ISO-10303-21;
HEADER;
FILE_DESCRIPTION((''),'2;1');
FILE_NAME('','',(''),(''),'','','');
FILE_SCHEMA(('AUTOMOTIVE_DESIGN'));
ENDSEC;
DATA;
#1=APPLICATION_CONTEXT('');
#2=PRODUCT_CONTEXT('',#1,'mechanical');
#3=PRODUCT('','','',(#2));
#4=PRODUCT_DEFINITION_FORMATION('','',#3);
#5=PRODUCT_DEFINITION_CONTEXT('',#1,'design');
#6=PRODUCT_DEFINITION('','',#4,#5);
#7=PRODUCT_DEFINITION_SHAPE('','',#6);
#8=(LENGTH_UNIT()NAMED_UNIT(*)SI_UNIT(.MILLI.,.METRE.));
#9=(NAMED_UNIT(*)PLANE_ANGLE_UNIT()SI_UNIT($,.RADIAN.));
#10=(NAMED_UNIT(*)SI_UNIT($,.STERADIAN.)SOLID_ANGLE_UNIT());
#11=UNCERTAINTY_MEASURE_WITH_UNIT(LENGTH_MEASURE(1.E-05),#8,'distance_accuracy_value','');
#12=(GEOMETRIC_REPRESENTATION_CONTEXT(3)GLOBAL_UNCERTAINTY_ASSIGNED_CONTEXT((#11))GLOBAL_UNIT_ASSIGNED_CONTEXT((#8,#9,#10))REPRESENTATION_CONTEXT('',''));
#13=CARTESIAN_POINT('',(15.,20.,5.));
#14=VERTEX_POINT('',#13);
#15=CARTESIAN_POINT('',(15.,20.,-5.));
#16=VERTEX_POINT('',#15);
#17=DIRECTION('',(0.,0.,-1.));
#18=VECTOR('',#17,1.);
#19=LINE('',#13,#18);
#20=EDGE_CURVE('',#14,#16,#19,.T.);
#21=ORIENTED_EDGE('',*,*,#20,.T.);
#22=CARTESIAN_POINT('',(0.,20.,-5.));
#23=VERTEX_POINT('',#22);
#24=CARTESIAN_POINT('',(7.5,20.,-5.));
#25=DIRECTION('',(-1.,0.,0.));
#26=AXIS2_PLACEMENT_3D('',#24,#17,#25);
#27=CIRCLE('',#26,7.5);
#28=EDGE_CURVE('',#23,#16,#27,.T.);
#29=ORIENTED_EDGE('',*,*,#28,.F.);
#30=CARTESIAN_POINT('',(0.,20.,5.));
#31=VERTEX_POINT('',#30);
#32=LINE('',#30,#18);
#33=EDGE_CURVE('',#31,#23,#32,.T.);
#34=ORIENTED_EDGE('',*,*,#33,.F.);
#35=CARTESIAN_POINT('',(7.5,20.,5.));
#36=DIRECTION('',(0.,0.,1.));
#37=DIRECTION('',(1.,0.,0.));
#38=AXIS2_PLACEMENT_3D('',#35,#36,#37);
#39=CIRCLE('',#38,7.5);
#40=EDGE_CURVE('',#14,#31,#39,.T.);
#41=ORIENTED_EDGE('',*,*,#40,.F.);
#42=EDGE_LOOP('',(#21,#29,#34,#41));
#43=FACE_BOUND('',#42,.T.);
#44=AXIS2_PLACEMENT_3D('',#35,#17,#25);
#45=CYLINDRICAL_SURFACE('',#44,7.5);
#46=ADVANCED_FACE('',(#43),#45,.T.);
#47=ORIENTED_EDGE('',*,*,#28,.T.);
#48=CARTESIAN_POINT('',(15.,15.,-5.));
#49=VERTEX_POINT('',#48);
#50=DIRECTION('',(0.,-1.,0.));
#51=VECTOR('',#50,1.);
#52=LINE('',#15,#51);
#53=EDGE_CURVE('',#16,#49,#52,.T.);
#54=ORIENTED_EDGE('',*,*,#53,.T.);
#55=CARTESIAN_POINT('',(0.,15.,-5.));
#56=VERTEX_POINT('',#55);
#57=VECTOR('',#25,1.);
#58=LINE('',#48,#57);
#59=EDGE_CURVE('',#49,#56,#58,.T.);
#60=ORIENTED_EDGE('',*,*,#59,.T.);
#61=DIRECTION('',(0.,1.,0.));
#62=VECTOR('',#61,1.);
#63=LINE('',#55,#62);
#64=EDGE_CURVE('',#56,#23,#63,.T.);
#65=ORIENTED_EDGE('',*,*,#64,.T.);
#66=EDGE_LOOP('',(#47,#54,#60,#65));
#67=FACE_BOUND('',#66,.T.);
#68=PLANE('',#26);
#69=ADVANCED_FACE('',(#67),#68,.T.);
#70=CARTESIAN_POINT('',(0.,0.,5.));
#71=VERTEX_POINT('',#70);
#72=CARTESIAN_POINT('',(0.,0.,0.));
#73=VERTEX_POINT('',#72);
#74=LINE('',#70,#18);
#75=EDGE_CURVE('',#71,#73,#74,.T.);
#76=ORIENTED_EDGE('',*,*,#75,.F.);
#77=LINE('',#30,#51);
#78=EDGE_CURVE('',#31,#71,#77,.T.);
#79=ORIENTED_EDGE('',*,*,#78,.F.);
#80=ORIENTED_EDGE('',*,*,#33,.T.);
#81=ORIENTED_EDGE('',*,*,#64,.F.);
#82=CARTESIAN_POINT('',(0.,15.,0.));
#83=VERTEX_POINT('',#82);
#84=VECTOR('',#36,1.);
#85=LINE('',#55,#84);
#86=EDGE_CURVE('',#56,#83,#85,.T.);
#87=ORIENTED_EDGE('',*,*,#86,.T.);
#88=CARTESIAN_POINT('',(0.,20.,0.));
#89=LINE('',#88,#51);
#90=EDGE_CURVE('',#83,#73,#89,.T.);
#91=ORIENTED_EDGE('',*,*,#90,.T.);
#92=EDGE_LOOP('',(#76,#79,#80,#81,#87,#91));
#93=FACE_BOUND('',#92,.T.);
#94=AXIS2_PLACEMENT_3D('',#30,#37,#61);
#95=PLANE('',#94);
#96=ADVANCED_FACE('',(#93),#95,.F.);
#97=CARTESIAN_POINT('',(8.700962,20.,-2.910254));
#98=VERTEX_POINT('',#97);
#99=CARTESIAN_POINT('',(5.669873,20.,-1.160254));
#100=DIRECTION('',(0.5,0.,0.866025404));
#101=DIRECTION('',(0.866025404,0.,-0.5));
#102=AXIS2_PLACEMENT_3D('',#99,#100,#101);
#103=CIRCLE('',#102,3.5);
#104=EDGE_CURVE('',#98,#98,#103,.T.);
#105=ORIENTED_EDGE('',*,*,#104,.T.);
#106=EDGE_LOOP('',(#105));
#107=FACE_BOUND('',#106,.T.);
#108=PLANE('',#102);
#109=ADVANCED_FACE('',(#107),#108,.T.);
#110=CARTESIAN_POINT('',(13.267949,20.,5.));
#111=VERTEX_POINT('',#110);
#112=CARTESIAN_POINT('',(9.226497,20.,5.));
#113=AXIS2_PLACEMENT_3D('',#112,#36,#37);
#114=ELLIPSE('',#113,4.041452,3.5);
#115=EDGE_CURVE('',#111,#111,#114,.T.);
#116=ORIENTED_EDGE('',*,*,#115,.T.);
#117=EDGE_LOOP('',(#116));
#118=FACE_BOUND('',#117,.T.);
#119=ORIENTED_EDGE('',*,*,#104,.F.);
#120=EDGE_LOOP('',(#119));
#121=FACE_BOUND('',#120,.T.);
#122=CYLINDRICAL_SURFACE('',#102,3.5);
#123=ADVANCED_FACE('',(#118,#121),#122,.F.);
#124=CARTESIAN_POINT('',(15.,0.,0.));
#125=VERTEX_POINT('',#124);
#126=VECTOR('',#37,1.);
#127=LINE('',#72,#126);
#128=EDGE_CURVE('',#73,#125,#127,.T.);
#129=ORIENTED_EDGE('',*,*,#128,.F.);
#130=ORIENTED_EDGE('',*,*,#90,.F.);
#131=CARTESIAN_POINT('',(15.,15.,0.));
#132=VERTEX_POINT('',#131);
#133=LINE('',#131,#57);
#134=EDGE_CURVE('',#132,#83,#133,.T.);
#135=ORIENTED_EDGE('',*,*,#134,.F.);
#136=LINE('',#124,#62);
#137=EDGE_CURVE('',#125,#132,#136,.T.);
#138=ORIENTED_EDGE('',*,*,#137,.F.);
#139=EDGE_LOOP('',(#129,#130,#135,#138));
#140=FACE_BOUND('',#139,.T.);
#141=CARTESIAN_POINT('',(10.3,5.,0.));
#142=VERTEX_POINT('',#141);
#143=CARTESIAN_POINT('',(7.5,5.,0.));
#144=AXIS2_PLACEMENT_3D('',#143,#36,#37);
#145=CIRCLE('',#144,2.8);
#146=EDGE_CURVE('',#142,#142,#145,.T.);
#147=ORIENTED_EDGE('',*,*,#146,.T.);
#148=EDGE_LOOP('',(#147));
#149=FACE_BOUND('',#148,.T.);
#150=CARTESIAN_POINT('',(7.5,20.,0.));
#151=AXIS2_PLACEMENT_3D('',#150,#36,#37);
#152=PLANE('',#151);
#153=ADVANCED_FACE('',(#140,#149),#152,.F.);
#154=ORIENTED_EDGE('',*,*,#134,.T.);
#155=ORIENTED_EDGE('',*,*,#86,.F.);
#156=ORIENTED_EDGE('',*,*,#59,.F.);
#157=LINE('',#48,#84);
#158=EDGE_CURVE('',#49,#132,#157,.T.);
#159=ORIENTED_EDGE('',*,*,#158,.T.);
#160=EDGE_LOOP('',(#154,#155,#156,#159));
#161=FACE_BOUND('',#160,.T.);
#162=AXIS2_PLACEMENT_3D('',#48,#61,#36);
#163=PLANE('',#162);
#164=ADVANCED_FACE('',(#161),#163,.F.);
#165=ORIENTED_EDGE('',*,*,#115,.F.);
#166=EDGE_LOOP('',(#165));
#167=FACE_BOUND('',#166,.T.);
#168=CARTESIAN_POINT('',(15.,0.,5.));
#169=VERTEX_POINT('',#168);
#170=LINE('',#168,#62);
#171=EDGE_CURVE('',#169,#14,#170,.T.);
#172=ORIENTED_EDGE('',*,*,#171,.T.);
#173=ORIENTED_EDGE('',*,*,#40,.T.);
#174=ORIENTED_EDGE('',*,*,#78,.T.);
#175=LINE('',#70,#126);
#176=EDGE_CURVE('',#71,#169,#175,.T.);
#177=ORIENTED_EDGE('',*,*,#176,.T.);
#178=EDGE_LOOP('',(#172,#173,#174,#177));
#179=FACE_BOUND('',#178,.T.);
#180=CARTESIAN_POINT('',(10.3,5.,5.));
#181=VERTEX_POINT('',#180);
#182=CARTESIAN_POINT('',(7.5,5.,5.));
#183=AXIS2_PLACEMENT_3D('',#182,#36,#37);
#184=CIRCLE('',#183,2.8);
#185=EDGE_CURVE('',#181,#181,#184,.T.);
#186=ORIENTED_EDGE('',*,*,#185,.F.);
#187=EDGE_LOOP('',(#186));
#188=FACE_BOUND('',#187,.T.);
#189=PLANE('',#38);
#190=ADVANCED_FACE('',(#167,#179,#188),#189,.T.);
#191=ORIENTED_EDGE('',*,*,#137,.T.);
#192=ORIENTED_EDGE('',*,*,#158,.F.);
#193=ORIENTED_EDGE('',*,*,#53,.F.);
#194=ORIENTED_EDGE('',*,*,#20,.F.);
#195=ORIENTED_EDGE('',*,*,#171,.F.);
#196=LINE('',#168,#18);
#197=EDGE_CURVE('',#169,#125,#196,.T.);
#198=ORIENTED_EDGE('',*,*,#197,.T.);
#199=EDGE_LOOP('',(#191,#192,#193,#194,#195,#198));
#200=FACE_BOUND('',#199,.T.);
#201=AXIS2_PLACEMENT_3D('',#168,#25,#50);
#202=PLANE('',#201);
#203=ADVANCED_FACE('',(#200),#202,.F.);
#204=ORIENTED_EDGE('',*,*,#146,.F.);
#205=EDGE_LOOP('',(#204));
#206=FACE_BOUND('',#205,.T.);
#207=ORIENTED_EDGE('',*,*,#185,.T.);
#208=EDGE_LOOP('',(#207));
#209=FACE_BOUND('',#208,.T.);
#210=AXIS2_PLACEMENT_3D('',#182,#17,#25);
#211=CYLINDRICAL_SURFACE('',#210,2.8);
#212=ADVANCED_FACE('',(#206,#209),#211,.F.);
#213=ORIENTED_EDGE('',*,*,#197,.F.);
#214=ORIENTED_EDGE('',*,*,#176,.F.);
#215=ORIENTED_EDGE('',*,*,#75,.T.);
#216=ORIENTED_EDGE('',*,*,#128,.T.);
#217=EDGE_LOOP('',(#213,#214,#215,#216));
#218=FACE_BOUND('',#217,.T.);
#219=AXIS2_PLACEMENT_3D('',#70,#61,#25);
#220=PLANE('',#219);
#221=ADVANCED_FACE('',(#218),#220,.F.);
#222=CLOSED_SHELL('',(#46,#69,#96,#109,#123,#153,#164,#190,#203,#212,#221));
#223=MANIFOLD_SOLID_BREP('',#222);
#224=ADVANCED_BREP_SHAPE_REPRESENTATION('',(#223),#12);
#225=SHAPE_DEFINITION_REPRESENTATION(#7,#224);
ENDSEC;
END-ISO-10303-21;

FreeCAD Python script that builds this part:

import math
import FreeCAD as App
import Part
import Sketcher

V = App.Vector
Q = App.Units.Quantity

doc = App.newDocument("Part")
params = doc.addObject("Spreadsheet::Sheet", "Params")
for row, (alias, value) in enumerate([
    ("sketch1_diameter", "5.6 mm"),
    ("sketch1_radius", "7.5 mm"),
    ("sketch1_height", "20 mm"),
    ("pad1_length", "5 mm"),
    ("sketch2_radius", "7.5 mm"),
    ("sketch2_height", "5 mm"),
    ("pad2_length", "5 mm"),
    ("sketch3_diameter", "7 mm"),
    ("pocket1_length", "10 mm"),
], start=1):
    params.set(f"A{row}", alias)
    params.set(f"B{row}", "=" + value)
    params.setAlias(f"B{row}", alias)

body = doc.addObject("PartDesign::Body", "Body")

# Sketch on XY plane
sketch1 = body.newObject("Sketcher::SketchObject", "Sketch")
sketch1.AttachmentSupport = (doc.getObject("XY_Plane"), [""])
sketch1.MapMode = "FlatFace"
sketch1.addGeometry([
    Part.LineSegment(V(0, 0, 0), V(15, 0, 0)),  # 0
    Part.LineSegment(V(15, 0, 0), V(15, 20, 0)),  # 1
    Part.ArcOfCircle(Part.Circle(V(7.5, 20, 0), V(0, 0, 1), 7.5), math.radians(0), math.radians(180)),  # 2
    Part.LineSegment(V(0, 20, 0), V(0, 0, 0)),  # 3
    Part.Circle(V(7.5, 5, 0), V(0, 0, 1), 2.8),  # 4
], False)
sketch1.addConstraint([
    Sketcher.Constraint("Coincident", 0, 2, 1, 1),
    Sketcher.Constraint("Tangent", 1, 2, 2, 1),
    Sketcher.Constraint("Tangent", 2, 2, 3, 1),
    Sketcher.Constraint("Coincident", 3, 2, 0, 1),
    Sketcher.Constraint("Horizontal", 0),
    Sketcher.Constraint("Vertical", 1),
    Sketcher.Constraint("Vertical", 3),
    Sketcher.Constraint("Coincident", 3, 2, -1, 1),
    Sketcher.Constraint("Vertical", 2, 3, 4, 3),
    Sketcher.Constraint("Diameter", 4, Q("5.6 mm")),
    Sketcher.Constraint("Radius", 2, Q("7.5 mm")),
    Sketcher.Constraint("DistanceY", 1, 1, 1, 2, Q("20 mm")),
    Sketcher.Constraint("DistanceY", -1, 1, 4, 3, Q("5 mm")),
])
sketch1.setExpression("Constraints[9]", "Params.sketch1_diameter")
sketch1.setExpression("Constraints[10]", "Params.sketch1_radius")
sketch1.setExpression("Constraints[11]", "Params.sketch1_height")
pad1 = body.newObject("PartDesign::Pad", "Pad")
pad1.Profile = sketch1
pad1.setExpression("Length", "Params.pad1_length")

# Sketch on XY plane
sketch2 = body.newObject("Sketcher::SketchObject", "Sketch001")
sketch2.AttachmentSupport = (doc.getObject("XY_Plane"), [""])
sketch2.MapMode = "FlatFace"
sketch2.addGeometry([
    Part.LineSegment(V(15, 20, 0), V(15, 15, 0)),
    Part.LineSegment(V(15, 15, 0), V(0, 15, 0)),
    Part.LineSegment(V(0, 15, 0), V(0, 20, 0)),
    Part.ArcOfCircle(Part.Circle(V(8, 20, 0), V(0, 0, 1), 8), math.radians(0), math.radians(180)),
], False)
sketch2.addConstraint([
    Sketcher.Constraint("Coincident", 0, 2, 1, 1),
    Sketcher.Constraint("Coincident", 1, 2, 2, 1),
    Sketcher.Constraint("Tangent", 2, 2, 3, 2),
    Sketcher.Constraint("Tangent", 3, 1, 0, 1),
    Sketcher.Constraint("Vertical", 0),
    Sketcher.Constraint("Horizontal", 1),
    Sketcher.Constraint("Vertical", 2),
    Sketcher.Constraint("PointOnObject", 1, 2, -2),
    Sketcher.Constraint("Radius", 3, Q("7.5 mm")),
    Sketcher.Constraint("DistanceY", 0, 2, 0, 1, Q("5 mm")),
    Sketcher.Constraint("DistanceY", -1, 1, 3, 3, Q("20 mm")),
])
sketch2.setExpression("Constraints[8]", "Params.sketch2_radius")
sketch2.setExpression("Constraints[9]", "Params.sketch2_height")
pad2 = body.newObject("PartDesign::Pad", "Pad001")
pad2.Profile = sketch2
pad2.setExpression("Length", "Params.pad2_length")
pad2.Reversed = True

# Sketch on an angled plane
sketch3 = body.newObject("Sketcher::SketchObject", "Sketch002")
sketch3.Placement = App.Placement(V(5.915064, 0, 10.245191), App.Rotation(V(0, 1, 0), V(-0.866025404, 0, 0.5), V(0.5, 0, 0.866025404), "ZXY"))
sketch3.addGeometry(Part.Circle(V(20, -5.5, 0), V(0, 0, 1), 3.5), False)
sketch3.addConstraint([
    Sketcher.Constraint("Diameter", 0, Q("7 mm")),
    Sketcher.Constraint("DistanceX", -1, 1, 0, 3, Q("20 mm")),
    Sketcher.Constraint("DistanceY", 0, 3, -1, 1, Q("5.490381 mm")),
])
sketch3.setExpression("Constraints[0]", "Params.sketch3_diameter")
pocket1 = body.newObject("PartDesign::Pocket", "Pocket")
pocket1.Profile = sketch3
pocket1.setExpression("Length", "Params.pocket1_length")

doc.recompute()
